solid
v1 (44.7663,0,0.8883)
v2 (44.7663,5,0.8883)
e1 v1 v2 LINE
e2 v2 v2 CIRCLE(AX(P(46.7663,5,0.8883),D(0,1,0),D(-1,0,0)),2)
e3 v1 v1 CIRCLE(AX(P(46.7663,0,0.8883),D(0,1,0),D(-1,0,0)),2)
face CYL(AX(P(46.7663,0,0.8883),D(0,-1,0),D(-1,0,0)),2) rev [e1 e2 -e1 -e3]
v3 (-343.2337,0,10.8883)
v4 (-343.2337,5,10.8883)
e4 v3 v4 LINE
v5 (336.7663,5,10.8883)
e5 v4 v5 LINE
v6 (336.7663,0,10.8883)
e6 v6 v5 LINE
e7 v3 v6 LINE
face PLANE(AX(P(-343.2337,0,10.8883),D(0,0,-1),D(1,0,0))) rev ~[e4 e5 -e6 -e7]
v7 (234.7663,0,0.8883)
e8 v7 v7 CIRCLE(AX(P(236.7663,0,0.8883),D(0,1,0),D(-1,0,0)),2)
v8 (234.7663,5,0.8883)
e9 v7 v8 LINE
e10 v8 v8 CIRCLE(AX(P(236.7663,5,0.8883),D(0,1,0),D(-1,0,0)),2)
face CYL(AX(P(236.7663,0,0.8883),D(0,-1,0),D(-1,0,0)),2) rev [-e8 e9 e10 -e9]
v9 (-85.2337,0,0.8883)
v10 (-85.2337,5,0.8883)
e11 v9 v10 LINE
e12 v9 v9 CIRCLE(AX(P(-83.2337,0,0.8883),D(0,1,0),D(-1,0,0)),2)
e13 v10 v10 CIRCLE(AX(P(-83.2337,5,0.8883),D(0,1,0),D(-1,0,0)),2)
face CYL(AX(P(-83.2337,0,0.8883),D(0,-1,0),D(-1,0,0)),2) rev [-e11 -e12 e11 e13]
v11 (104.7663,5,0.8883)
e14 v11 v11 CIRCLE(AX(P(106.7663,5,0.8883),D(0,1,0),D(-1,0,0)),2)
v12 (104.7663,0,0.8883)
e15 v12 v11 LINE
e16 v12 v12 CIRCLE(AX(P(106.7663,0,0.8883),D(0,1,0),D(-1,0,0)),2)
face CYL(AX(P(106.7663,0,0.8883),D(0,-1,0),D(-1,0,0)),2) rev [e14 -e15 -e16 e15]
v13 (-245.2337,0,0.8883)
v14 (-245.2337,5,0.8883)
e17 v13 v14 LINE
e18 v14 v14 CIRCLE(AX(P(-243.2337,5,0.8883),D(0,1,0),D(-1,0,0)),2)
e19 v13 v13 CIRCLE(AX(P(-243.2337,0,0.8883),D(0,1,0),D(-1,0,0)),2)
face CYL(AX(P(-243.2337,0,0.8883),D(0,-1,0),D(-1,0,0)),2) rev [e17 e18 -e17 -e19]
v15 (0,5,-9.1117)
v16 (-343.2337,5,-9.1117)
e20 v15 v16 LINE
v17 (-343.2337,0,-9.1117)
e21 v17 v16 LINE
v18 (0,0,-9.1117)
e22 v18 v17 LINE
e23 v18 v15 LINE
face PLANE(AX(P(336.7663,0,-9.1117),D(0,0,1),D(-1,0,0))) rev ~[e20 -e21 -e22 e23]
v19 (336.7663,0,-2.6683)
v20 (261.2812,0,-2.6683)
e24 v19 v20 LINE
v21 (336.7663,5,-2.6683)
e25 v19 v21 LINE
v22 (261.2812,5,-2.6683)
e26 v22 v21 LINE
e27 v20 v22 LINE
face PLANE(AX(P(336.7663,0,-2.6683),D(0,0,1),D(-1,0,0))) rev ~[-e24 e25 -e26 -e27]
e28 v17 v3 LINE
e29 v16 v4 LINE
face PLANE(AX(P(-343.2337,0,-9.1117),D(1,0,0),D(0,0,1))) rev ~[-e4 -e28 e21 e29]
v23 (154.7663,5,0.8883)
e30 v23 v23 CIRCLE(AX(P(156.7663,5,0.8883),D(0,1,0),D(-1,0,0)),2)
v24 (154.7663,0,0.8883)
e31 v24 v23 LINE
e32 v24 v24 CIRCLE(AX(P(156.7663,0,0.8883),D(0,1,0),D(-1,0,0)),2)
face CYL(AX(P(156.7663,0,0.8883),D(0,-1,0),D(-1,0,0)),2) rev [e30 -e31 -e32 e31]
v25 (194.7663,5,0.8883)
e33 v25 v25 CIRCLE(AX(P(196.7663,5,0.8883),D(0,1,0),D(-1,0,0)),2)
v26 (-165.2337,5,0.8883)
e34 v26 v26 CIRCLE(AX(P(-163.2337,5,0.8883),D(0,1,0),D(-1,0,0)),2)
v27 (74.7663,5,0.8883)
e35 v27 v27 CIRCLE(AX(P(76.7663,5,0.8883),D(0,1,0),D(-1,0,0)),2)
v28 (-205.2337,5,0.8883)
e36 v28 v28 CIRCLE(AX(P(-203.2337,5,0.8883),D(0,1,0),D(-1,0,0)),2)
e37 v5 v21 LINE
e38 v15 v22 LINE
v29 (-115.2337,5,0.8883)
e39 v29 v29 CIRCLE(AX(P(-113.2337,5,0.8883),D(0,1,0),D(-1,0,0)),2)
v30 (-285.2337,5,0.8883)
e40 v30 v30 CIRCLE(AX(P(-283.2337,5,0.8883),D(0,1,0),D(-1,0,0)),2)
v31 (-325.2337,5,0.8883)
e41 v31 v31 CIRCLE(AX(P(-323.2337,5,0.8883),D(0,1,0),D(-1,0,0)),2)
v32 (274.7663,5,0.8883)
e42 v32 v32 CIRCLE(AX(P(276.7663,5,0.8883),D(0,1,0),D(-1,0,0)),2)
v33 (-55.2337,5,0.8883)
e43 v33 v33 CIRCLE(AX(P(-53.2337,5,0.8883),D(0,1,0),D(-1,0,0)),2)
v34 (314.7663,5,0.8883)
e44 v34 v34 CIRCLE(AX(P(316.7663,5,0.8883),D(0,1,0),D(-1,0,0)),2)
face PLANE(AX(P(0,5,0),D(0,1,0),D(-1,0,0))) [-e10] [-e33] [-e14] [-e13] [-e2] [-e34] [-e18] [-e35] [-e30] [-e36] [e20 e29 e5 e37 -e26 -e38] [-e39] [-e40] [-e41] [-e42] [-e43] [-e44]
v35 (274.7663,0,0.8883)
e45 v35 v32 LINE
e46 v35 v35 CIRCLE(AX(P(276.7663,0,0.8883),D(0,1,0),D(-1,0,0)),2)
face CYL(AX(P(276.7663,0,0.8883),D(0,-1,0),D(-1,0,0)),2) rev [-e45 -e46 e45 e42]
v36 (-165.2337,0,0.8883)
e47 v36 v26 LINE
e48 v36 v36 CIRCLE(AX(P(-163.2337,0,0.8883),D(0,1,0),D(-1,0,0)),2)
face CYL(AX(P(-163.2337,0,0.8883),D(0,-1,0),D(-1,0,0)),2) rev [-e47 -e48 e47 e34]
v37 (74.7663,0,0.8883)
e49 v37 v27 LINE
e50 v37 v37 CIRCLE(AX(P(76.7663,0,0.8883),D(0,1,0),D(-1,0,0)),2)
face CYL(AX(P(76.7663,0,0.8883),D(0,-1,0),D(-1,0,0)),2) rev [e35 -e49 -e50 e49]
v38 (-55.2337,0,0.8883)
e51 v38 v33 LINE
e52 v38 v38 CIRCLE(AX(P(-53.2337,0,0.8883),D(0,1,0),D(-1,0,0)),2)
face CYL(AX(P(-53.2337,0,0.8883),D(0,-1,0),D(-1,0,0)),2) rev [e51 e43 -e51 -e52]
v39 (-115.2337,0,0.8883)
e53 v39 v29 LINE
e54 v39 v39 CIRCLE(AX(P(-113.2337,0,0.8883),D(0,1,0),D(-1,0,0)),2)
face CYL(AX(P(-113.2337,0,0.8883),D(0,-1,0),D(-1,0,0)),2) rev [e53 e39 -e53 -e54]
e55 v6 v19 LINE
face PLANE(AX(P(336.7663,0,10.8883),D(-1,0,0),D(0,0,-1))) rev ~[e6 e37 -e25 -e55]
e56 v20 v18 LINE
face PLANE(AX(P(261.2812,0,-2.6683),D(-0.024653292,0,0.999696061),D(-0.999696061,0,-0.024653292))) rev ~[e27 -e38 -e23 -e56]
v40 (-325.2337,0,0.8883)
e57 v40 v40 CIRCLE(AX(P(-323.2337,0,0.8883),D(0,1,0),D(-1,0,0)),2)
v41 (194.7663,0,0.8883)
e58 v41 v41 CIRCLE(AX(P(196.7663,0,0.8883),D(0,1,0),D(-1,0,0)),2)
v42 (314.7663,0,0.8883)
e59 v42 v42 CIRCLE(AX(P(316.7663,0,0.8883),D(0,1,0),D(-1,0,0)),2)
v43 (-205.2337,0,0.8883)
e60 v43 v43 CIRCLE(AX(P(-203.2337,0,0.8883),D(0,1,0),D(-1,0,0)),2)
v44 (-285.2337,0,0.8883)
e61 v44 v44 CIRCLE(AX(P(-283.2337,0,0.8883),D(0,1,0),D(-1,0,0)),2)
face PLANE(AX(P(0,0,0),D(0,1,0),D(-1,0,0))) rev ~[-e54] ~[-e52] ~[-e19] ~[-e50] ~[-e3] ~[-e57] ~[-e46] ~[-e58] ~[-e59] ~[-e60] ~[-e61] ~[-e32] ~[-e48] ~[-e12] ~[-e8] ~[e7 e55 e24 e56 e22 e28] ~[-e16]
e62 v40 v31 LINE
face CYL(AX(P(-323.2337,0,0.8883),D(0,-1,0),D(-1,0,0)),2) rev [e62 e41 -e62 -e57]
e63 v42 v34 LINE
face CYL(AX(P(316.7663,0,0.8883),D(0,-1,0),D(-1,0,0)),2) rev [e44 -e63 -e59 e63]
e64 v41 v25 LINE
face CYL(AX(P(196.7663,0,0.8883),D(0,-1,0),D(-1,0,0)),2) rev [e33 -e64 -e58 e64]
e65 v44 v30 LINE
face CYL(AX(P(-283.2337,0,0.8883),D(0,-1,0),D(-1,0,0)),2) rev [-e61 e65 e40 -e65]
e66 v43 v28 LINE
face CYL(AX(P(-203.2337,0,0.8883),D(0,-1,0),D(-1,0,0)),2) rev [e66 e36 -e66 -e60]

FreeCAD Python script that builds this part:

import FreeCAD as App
import Part
import Sketcher
Q = App.Units.Quantity


def add_polygon(sketch, points):
    """Adds a closed chain of lines whose ends are joined by coincident constraints."""
    first, n = sketch.GeometryCount, len(points)
    for a, b in zip(points, points[1:] + points[:1]):
        sketch.addGeometry(Part.LineSegment(App.Vector(*a, 0), App.Vector(*b, 0)), False)
    for i in range(n):
        sketch.addConstraint(Sketcher.Constraint("Coincident", first + i, 2, first + (i + 1) % n, 1))

doc = App.newDocument("Part")
body = doc.addObject("PartDesign::Body", "Body")

# Sketch on XZ plane
sketch1 = body.newObject("Sketcher::SketchObject", "Sketch")
sketch1.AttachmentSupport = (doc.getObject("XZ_Plane"), [""])
sketch1.MapMode = "FlatFace"
add_polygon(sketch1, [(-343.2, -9.1), (-343.2, 10.9), (336.8, 10.9), (336.8, -9.1)])  # lines 0-3
sketch1.addGeometry(Part.Circle(App.Vector(316.8, 0.9, 0), App.Vector(0, 0, 1), 2), False)  # 4
sketch1.addGeometry(Part.Circle(App.Vector(276.8, 0.9, 0), App.Vector(0, 0, 1), 2), False)  # 5
sketch1.addGeometry(Part.Circle(App.Vector(236.8, 0.9, 0), App.Vector(0, 0, 1), 2), False)  # 6
sketch1.addGeometry(Part.Circle(App.Vector(196.8, 0.9, 0), App.Vector(0, 0, 1), 2), False)  # 7
sketch1.addGeometry(Part.Circle(App.Vector(156.8, 0.9, 0), App.Vector(0, 0, 1), 2), False)  # 8
sketch1.addGeometry(Part.Circle(App.Vector(106.8, 0.9, 0), App.Vector(0, 0, 1), 2), False)  # 9
sketch1.addGeometry(Part.Circle(App.Vector(76.8, 0.9, 0), App.Vector(0, 0, 1), 2), False)  # 10
sketch1.addGeometry(Part.Circle(App.Vector(46.8, 0.9, 0), App.Vector(0, 0, 1), 2), False)  # 11
sketch1.addGeometry(Part.Circle(App.Vector(-53.2, 0.9, 0), App.Vector(0, 0, 1), 2), False)  # 12
sketch1.addGeometry(Part.Circle(App.Vector(-83.2, 0.9, 0), App.Vector(0, 0, 1), 2), False)  # 13
sketch1.addGeometry(Part.Circle(App.Vector(-113.2, 0.9, 0), App.Vector(0, 0, 1), 2), False)  # 14
sketch1.addGeometry(Part.Circle(App.Vector(-163.2, 0.9, 0), App.Vector(0, 0, 1), 2), False)  # 15
sketch1.addGeometry(Part.Circle(App.Vector(-203.2, 0.9, 0), App.Vector(0, 0, 1), 2), False)  # 16
sketch1.addGeometry(Part.Circle(App.Vector(-243.2, 0.9, 0), App.Vector(0, 0, 1), 2), False)  # 17
sketch1.addGeometry(Part.Circle(App.Vector(-283.2, 0.9, 0), App.Vector(0, 0, 1), 2), False)  # 18
sketch1.addGeometry(Part.Circle(App.Vector(-323.2, 0.9, 0), App.Vector(0, 0, 1), 2), False)  # 19
sketch1.addConstraint(Sketcher.Constraint("Vertical", 0))
sketch1.addConstraint(Sketcher.Constraint("Horizontal", 1))
sketch1.addConstraint(Sketcher.Constraint("Vertical", 2))
sketch1.addConstraint(Sketcher.Constraint("Horizontal", 3))
sketch1.addConstraint(Sketcher.Constraint("Equal", 4, 5))
sketch1.addConstraint(Sketcher.Constraint("Equal", 5, 6))
sketch1.addConstraint(Sketcher.Constraint("Equal", 6, 7))
sketch1.addConstraint(Sketcher.Constraint("Equal", 7, 8))
sketch1.addConstraint(Sketcher.Constraint("Equal", 8, 9))
sketch1.addConstraint(Sketcher.Constraint("Equal", 9, 10))
sketch1.addConstraint(Sketcher.Constraint("Equal", 10, 11))
sketch1.addConstraint(Sketcher.Constraint("Equal", 11, 12))
sketch1.addConstraint(Sketcher.Constraint("Equal", 12, 13))
sketch1.addConstraint(Sketcher.Constraint("Equal", 13, 14))
sketch1.addConstraint(Sketcher.Constraint("Equal", 14, 15))
sketch1.addConstraint(Sketcher.Constraint("Equal", 15, 16))
sketch1.addConstraint(Sketcher.Constraint("Equal", 16, 17))
sketch1.addConstraint(Sketcher.Constraint("Equal", 17, 18))
sketch1.addConstraint(Sketcher.Constraint("Equal", 18, 19))
sketch1.addConstraint(Sketcher.Constraint("Horizontal", 4, 3, 5, 3))
sketch1.addConstraint(Sketcher.Constraint("Horizontal", 5, 3, 6, 3))
sketch1.addConstraint(Sketcher.Constraint("Horizontal", 6, 3, 7, 3))
sketch1.addConstraint(Sketcher.Constraint("Horizontal", 7, 3, 8, 3))
sketch1.addConstraint(Sketcher.Constraint("Horizontal", 8, 3, 9, 3))
sketch1.addConstraint(Sketcher.Constraint("Horizontal", 9, 3, 10, 3))
sketch1.addConstraint(Sketcher.Constraint("Horizontal", 10, 3, 11, 3))
sketch1.addConstraint(Sketcher.Constraint("Horizontal", 11, 3, 12, 3))
sketch1.addConstraint(Sketcher.Constraint("Horizontal", 12, 3, 13, 3))
sketch1.addConstraint(Sketcher.Constraint("Horizontal", 13, 3, 14, 3))
sketch1.addConstraint(Sketcher.Constraint("Horizontal", 14, 3, 15, 3))
sketch1.addConstraint(Sketcher.Constraint("Horizontal", 15, 3, 16, 3))
sketch1.addConstraint(Sketcher.Constraint("Horizontal", 16, 3, 17, 3))
sketch1.addConstraint(Sketcher.Constraint("Horizontal", 17, 3, 18, 3))
sketch1.addConstraint(Sketcher.Constraint("Horizontal", 18, 3, 19, 3))
sketch1.addConstraint(Sketcher.Constraint("DistanceX", 1, 1, 1, 2, Q("680 mm")))
sketch1.addConstraint(Sketcher.Constraint("DistanceY", 0, 1, 0, 2, Q("20 mm")))
sketch1.addConstraint(Sketcher.Constraint("Diameter", 4, Q("4 mm")))
sketch1.addConstraint(Sketcher.Constraint("DistanceX", 0, 2, 19, 3, Q("20 mm")))
sketch1.addConstraint(Sketcher.Constraint("DistanceY", 19, 3, 0, 2, Q("10 mm")))
sketch1.addConstraint(Sketcher.Constraint("DistanceX", 4, 3, 1, 2, Q("20 mm")))
sketch1.addConstraint(Sketcher.Constraint("DistanceX", 5, 3, 4, 3, Q("40 mm")))
sketch1.addConstraint(Sketcher.Constraint("DistanceX", 6, 3, 5, 3, Q("40 mm")))
sketch1.addConstraint(Sketcher.Constraint("DistanceX", 7, 3, 6, 3, Q("40 mm")))
sketch1.addConstraint(Sketcher.Constraint("DistanceX", 8, 3, 7, 3, Q("40 mm")))
sketch1.addConstraint(Sketcher.Constraint("DistanceX", 9, 3, 8, 3, Q("50 mm")))
sketch1.addConstraint(Sketcher.Constraint("DistanceX", 10, 3, 9, 3, Q("30 mm")))
sketch1.addConstraint(Sketcher.Constraint("DistanceX", 11, 3, 10, 3, Q("30 mm")))
sketch1.addConstraint(Sketcher.Constraint("DistanceX", 12, 3, 11, 3, Q("100 mm")))
sketch1.addConstraint(Sketcher.Constraint("DistanceX", 13, 3, 12, 3, Q("30 mm")))
sketch1.addConstraint(Sketcher.Constraint("DistanceX", 14, 3, 13, 3, Q("30 mm")))
sketch1.addConstraint(Sketcher.Constraint("DistanceX", 15, 3, 14, 3, Q("50 mm")))
sketch1.addConstraint(Sketcher.Constraint("DistanceX", 16, 3, 15, 3, Q("40 mm")))
sketch1.addConstraint(Sketcher.Constraint("DistanceX", 17, 3, 16, 3, Q("40 mm")))
sketch1.addConstraint(Sketcher.Constraint("DistanceX", 18, 3, 17, 3, Q("40 mm")))
sketch1.addConstraint(Sketcher.Constraint("DistanceX", -1, 1, 4, 3, Q("316.7663 mm")))
sketch1.addConstraint(Sketcher.Constraint("DistanceY", -1, 1, 4, 3, Q("0.8883 mm")))
pad1 = body.newObject("PartDesign::Pad", "Pad")
pad1.Profile = sketch1
pad1.Length = 5
pad1.Reversed = True

# Sketch on XZ plane
sketch2 = body.newObject("Sketcher::SketchObject", "Sketch001")
sketch2.AttachmentSupport = (doc.getObject("XZ_Plane"), [""])
sketch2.MapMode = "FlatFace"
add_polygon(sketch2, [(0, -9), (337, -9), (337, -3), (261, -3)])  # lines 0-3
sketch2.addConstraint(Sketcher.Constraint("Horizontal", 0))
sketch2.addConstraint(Sketcher.Constraint("Vertical", 1))
sketch2.addConstraint(Sketcher.Constraint("Horizontal", 2))
sketch2.addConstraint(Sketcher.Constraint("PointOnObject", 3, 2, -2))
sketch2.addConstraint(Sketcher.Constraint("DistanceX", 2, 2, 2, 1, Q("75.485 mm")))
sketch2.addConstraint(Sketcher.Constraint("DistanceX", 0, 1, 0, 2, Q("336.7663 mm")))
sketch2.addConstraint(Sketcher.Constraint("DistanceY", 1, 1, 1, 2, Q("6.4434 mm")))
sketch2.addConstraint(Sketcher.Constraint("DistanceY", 0, 2, -1, 1, Q("9.1117 mm")))
pocket1 = body.newObject("PartDesign::Pocket", "Pocket")
pocket1.Profile = sketch2
pocket1.Type = "ThroughAll"

doc.recompute()
